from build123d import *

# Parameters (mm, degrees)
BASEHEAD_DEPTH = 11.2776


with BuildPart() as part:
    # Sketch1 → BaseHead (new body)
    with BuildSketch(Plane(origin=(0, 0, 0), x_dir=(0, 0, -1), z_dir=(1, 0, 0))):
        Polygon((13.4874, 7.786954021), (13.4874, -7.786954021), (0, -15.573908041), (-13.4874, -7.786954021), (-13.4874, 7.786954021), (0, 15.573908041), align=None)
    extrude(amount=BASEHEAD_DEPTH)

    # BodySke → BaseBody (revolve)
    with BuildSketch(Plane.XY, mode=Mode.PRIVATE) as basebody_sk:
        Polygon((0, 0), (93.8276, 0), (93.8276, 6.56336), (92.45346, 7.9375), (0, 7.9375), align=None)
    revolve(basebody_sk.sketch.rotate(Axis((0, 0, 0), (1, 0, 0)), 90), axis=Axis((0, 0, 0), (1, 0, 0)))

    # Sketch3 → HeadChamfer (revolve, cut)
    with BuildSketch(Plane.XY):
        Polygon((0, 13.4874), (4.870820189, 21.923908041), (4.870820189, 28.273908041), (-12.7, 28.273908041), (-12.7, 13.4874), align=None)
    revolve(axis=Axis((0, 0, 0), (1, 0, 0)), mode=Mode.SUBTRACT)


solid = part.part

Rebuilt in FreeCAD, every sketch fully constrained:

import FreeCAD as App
import Part
import Sketcher

V = App.Vector
Q = App.Units.Quantity

doc = App.newDocument("Part")
params = doc.addObject("Spreadsheet::Sheet", "Params")
for row, (alias, value) in enumerate([
    ("pad1_length", "0.444 in"),
    ("sketch2_width", "3.694 in"),
    ("sketch2_height", "0.3125 in"),
    ("revolution_angle", "360 deg"),
    ("sketch3_width", "0.5 in"),
    ("sketch3_height", "0.25 in"),
    ("groove_angle", "360 deg"),
], start=1):
    params.set(f"A{row}", alias)
    params.set(f"B{row}", "=" + value)
    params.setAlias(f"B{row}", alias)

body = doc.addObject("PartDesign::Body", "Body")

# Sketch on YZ plane
sketch1 = body.newObject("Sketcher::SketchObject", "Sketch")
sketch1.AttachmentSupport = (doc.getObject("YZ_Plane"), [""])
sketch1.MapMode = "FlatFace"
sketch1.addGeometry(Part.LineSegment(V(-8, -13, 0), V(8, -13, 0)), False)
sketch1.addGeometry(Part.LineSegment(V(8, -13, 0), V(16, 0, 0)), False)
sketch1.addGeometry(Part.LineSegment(V(16, 0, 0), V(8, 13, 0)), False)
sketch1.addGeometry(Part.LineSegment(V(8, 13, 0), V(-8, 13, 0)), False)
sketch1.addGeometry(Part.LineSegment(V(-8, 13, 0), V(-16, 0, 0)), False)
sketch1.addGeometry(Part.LineSegment(V(-16, 0, 0), V(-8, -13, 0)), False)
sketch1.addConstraint(Sketcher.Constraint("Coincident", 0, 2, 1, 1))
sketch1.addConstraint(Sketcher.Constraint("Coincident", 1, 2, 2, 1))
sketch1.addConstraint(Sketcher.Constraint("Coincident", 2, 2, 3, 1))
sketch1.addConstraint(Sketcher.Constraint("Coincident", 3, 2, 4, 1))
sketch1.addConstraint(Sketcher.Constraint("Coincident", 4, 2, 5, 1))
sketch1.addConstraint(Sketcher.Constraint("Coincident", 5, 2, 0, 1))
sketch1.addConstraint(Sketcher.Constraint("Horizontal", 0))
sketch1.addConstraint(Sketcher.Constraint("Horizontal", 3))
sketch1.addConstraint(Sketcher.Constraint("Symmetric", 0, 2, 3, 2, -1, 1))
sketch1.addConstraint(Sketcher.Constraint("Symmetric", 1, 2, 4, 2, -1, 1))
sketch1.addConstraint(Sketcher.Constraint("PointOnObject", 1, 2, -1))
sketch1.addConstraint(Sketcher.Constraint("Parallel", 2, 5))
sketch1.addConstraint(Sketcher.Constraint("Vertical", 0, 2, 2, 2))
sketch1.addConstraint(Sketcher.Constraint("Angle", 1, Q("60 deg")))
sketch1.addConstraint(Sketcher.Constraint("DistanceY", 0, 2, -1, 1, Q("0.531 in")))
sketch1.addConstraint(Sketcher.Constraint("DistanceX", 0, 1, 0, 2, 15.573908))
pad1 = body.newObject("PartDesign::Pad", "Pad")
pad1.Profile = sketch1
pad1.setExpression("Length", "Params.pad1_length")

# Sketch on XY plane
sketch2 = body.newObject("Sketcher::SketchObject", "Sketch001")
sketch2.AttachmentSupport = (doc.getObject("XY_Plane"), [""])
sketch2.MapMode = "FlatFace"
sketch2.addGeometry(Part.LineSegment(V(0, 0, 0), V(93.8, 0, 0)), False)
sketch2.addGeometry(Part.LineSegment(V(93.8, 0, 0), V(93.8, 6.6, 0)), False)
sketch2.addGeometry(Part.LineSegment(V(93.8, 6.6, 0), V(92.5, 7.9, 0)), False)
sketch2.addGeometry(Part.LineSegment(V(92.5, 7.9, 0), V(0, 7.9, 0)), False)
sketch2.addGeometry(Part.LineSegment(V(0, 7.9, 0), V(0, 0, 0)), False)
sketch2.addConstraint(Sketcher.Constraint("Coincident", 0, 2, 1, 1))
sketch2.addConstraint(Sketcher.Constraint("Coincident", 1, 2, 2, 1))
sketch2.addConstraint(Sketcher.Constraint("Coincident", 2, 2, 3, 1))
sketch2.addConstraint(Sketcher.Constraint("Coincident", 3, 2, 4, 1))
sketch2.addConstraint(Sketcher.Constraint("Coincident", 4, 2, 0, 1))
sketch2.addConstraint(Sketcher.Constraint("Horizontal", 0))
sketch2.addConstraint(Sketcher.Constraint("Vertical", 1))
sketch2.addConstraint(Sketcher.Constraint("Horizontal", 3))
sketch2.addConstraint(Sketcher.Constraint("Vertical", 4))
sketch2.addConstraint(Sketcher.Constraint("Coincident", 4, 2, -1, 1))
sketch2.addConstraint(Sketcher.Constraint("Angle", 2, Q("135 deg")))
sketch2.addConstraint(Sketcher.Constraint("DistanceX", 0, 1, 0, 2, Q("3.694 in")))
sketch2.addConstraint(Sketcher.Constraint("DistanceY", 4, 2, 4, 1, Q("0.3125 in")))
sketch2.addConstraint(Sketcher.Constraint("DistanceX", 3, 2, 3, 1, Q("3.6399 in")))
sketch2.setExpression("Constraints[11]", "Params.sketch2_width")
sketch2.setExpression("Constraints[12]", "Params.sketch2_height")
revolution = body.newObject("PartDesign::Revolution", "Revolution")
revolution.Profile = sketch2
revolution.ReferenceAxis = (sketch2, ["H_Axis"])
revolution.setExpression("Angle", "Params.revolution_angle")

# Sketch on XY plane
sketch3 = body.newObject("Sketcher::SketchObject", "Sketch002")
sketch3.AttachmentSupport = (doc.getObject("XY_Plane"), [""])
sketch3.MapMode = "FlatFace"
sketch3.addGeometry(Part.LineSegment(V(0, 13, 0), V(5, 22, 0)), False)
sketch3.addGeometry(Part.LineSegment(V(5, 22, 0), V(5, 28, 0)), False)
sketch3.addGeometry(Part.LineSegment(V(5, 28, 0), V(-13, 28, 0)), False)
sketch3.addGeometry(Part.LineSegment(V(-13, 28, 0), V(-13, 13, 0)), False)
sketch3.addGeometry(Part.LineSegment(V(-13, 13, 0), V(0, 13, 0)), False)
sketch3.addConstraint(Sketcher.Constraint("Coincident", 0, 2, 1, 1))
sketch3.addConstraint(Sketcher.Constraint("Coincident", 1, 2, 2, 1))
sketch3.addConstraint(Sketcher.Constraint("Coincident", 2, 2, 3, 1))
sketch3.addConstraint(Sketcher.Constraint("Coincident", 3, 2, 4, 1))
sketch3.addConstraint(Sketcher.Constraint("Coincident", 4, 2, 0, 1))
sketch3.addConstraint(Sketcher.Constraint("Vertical", 1))
sketch3.addConstraint(Sketcher.Constraint("Horizontal", 2))
sketch3.addConstraint(Sketcher.Constraint("Vertical", 3))
sketch3.addConstraint(Sketcher.Constraint("Horizontal", 4))
sketch3.addConstraint(Sketcher.Constraint("PointOnObject", 4, 2, -2))
sketch3.addConstraint(Sketcher.Constraint("DistanceX", 4, 1, 4, 2, Q("0.5 in")))
sketch3.addConstraint(Sketcher.Constraint("Angle", 0, Q("60 deg")))
sketch3.addConstraint(Sketcher.Constraint("DistanceY", 1, 1, 1, 2, Q("0.25 in")))
sketch3.addConstraint(Sketcher.Constraint("DistanceY", -1, 1, 3, 2, Q("0.531 in")))
sketch3.addConstraint(Sketcher.Constraint("DistanceX", 2, 2, 2, 1, 17.57082))
sketch3.setExpression("Constraints[10]", "Params.sketch3_width")
sketch3.setExpression("Constraints[12]", "Params.sketch3_height")
groove = body.newObject("PartDesign::Groove", "Groove")
groove.Profile = sketch3
groove.ReferenceAxis = (sketch3, ["H_Axis"])
groove.setExpression("Angle", "Params.groove_angle")

doc.recompute()
